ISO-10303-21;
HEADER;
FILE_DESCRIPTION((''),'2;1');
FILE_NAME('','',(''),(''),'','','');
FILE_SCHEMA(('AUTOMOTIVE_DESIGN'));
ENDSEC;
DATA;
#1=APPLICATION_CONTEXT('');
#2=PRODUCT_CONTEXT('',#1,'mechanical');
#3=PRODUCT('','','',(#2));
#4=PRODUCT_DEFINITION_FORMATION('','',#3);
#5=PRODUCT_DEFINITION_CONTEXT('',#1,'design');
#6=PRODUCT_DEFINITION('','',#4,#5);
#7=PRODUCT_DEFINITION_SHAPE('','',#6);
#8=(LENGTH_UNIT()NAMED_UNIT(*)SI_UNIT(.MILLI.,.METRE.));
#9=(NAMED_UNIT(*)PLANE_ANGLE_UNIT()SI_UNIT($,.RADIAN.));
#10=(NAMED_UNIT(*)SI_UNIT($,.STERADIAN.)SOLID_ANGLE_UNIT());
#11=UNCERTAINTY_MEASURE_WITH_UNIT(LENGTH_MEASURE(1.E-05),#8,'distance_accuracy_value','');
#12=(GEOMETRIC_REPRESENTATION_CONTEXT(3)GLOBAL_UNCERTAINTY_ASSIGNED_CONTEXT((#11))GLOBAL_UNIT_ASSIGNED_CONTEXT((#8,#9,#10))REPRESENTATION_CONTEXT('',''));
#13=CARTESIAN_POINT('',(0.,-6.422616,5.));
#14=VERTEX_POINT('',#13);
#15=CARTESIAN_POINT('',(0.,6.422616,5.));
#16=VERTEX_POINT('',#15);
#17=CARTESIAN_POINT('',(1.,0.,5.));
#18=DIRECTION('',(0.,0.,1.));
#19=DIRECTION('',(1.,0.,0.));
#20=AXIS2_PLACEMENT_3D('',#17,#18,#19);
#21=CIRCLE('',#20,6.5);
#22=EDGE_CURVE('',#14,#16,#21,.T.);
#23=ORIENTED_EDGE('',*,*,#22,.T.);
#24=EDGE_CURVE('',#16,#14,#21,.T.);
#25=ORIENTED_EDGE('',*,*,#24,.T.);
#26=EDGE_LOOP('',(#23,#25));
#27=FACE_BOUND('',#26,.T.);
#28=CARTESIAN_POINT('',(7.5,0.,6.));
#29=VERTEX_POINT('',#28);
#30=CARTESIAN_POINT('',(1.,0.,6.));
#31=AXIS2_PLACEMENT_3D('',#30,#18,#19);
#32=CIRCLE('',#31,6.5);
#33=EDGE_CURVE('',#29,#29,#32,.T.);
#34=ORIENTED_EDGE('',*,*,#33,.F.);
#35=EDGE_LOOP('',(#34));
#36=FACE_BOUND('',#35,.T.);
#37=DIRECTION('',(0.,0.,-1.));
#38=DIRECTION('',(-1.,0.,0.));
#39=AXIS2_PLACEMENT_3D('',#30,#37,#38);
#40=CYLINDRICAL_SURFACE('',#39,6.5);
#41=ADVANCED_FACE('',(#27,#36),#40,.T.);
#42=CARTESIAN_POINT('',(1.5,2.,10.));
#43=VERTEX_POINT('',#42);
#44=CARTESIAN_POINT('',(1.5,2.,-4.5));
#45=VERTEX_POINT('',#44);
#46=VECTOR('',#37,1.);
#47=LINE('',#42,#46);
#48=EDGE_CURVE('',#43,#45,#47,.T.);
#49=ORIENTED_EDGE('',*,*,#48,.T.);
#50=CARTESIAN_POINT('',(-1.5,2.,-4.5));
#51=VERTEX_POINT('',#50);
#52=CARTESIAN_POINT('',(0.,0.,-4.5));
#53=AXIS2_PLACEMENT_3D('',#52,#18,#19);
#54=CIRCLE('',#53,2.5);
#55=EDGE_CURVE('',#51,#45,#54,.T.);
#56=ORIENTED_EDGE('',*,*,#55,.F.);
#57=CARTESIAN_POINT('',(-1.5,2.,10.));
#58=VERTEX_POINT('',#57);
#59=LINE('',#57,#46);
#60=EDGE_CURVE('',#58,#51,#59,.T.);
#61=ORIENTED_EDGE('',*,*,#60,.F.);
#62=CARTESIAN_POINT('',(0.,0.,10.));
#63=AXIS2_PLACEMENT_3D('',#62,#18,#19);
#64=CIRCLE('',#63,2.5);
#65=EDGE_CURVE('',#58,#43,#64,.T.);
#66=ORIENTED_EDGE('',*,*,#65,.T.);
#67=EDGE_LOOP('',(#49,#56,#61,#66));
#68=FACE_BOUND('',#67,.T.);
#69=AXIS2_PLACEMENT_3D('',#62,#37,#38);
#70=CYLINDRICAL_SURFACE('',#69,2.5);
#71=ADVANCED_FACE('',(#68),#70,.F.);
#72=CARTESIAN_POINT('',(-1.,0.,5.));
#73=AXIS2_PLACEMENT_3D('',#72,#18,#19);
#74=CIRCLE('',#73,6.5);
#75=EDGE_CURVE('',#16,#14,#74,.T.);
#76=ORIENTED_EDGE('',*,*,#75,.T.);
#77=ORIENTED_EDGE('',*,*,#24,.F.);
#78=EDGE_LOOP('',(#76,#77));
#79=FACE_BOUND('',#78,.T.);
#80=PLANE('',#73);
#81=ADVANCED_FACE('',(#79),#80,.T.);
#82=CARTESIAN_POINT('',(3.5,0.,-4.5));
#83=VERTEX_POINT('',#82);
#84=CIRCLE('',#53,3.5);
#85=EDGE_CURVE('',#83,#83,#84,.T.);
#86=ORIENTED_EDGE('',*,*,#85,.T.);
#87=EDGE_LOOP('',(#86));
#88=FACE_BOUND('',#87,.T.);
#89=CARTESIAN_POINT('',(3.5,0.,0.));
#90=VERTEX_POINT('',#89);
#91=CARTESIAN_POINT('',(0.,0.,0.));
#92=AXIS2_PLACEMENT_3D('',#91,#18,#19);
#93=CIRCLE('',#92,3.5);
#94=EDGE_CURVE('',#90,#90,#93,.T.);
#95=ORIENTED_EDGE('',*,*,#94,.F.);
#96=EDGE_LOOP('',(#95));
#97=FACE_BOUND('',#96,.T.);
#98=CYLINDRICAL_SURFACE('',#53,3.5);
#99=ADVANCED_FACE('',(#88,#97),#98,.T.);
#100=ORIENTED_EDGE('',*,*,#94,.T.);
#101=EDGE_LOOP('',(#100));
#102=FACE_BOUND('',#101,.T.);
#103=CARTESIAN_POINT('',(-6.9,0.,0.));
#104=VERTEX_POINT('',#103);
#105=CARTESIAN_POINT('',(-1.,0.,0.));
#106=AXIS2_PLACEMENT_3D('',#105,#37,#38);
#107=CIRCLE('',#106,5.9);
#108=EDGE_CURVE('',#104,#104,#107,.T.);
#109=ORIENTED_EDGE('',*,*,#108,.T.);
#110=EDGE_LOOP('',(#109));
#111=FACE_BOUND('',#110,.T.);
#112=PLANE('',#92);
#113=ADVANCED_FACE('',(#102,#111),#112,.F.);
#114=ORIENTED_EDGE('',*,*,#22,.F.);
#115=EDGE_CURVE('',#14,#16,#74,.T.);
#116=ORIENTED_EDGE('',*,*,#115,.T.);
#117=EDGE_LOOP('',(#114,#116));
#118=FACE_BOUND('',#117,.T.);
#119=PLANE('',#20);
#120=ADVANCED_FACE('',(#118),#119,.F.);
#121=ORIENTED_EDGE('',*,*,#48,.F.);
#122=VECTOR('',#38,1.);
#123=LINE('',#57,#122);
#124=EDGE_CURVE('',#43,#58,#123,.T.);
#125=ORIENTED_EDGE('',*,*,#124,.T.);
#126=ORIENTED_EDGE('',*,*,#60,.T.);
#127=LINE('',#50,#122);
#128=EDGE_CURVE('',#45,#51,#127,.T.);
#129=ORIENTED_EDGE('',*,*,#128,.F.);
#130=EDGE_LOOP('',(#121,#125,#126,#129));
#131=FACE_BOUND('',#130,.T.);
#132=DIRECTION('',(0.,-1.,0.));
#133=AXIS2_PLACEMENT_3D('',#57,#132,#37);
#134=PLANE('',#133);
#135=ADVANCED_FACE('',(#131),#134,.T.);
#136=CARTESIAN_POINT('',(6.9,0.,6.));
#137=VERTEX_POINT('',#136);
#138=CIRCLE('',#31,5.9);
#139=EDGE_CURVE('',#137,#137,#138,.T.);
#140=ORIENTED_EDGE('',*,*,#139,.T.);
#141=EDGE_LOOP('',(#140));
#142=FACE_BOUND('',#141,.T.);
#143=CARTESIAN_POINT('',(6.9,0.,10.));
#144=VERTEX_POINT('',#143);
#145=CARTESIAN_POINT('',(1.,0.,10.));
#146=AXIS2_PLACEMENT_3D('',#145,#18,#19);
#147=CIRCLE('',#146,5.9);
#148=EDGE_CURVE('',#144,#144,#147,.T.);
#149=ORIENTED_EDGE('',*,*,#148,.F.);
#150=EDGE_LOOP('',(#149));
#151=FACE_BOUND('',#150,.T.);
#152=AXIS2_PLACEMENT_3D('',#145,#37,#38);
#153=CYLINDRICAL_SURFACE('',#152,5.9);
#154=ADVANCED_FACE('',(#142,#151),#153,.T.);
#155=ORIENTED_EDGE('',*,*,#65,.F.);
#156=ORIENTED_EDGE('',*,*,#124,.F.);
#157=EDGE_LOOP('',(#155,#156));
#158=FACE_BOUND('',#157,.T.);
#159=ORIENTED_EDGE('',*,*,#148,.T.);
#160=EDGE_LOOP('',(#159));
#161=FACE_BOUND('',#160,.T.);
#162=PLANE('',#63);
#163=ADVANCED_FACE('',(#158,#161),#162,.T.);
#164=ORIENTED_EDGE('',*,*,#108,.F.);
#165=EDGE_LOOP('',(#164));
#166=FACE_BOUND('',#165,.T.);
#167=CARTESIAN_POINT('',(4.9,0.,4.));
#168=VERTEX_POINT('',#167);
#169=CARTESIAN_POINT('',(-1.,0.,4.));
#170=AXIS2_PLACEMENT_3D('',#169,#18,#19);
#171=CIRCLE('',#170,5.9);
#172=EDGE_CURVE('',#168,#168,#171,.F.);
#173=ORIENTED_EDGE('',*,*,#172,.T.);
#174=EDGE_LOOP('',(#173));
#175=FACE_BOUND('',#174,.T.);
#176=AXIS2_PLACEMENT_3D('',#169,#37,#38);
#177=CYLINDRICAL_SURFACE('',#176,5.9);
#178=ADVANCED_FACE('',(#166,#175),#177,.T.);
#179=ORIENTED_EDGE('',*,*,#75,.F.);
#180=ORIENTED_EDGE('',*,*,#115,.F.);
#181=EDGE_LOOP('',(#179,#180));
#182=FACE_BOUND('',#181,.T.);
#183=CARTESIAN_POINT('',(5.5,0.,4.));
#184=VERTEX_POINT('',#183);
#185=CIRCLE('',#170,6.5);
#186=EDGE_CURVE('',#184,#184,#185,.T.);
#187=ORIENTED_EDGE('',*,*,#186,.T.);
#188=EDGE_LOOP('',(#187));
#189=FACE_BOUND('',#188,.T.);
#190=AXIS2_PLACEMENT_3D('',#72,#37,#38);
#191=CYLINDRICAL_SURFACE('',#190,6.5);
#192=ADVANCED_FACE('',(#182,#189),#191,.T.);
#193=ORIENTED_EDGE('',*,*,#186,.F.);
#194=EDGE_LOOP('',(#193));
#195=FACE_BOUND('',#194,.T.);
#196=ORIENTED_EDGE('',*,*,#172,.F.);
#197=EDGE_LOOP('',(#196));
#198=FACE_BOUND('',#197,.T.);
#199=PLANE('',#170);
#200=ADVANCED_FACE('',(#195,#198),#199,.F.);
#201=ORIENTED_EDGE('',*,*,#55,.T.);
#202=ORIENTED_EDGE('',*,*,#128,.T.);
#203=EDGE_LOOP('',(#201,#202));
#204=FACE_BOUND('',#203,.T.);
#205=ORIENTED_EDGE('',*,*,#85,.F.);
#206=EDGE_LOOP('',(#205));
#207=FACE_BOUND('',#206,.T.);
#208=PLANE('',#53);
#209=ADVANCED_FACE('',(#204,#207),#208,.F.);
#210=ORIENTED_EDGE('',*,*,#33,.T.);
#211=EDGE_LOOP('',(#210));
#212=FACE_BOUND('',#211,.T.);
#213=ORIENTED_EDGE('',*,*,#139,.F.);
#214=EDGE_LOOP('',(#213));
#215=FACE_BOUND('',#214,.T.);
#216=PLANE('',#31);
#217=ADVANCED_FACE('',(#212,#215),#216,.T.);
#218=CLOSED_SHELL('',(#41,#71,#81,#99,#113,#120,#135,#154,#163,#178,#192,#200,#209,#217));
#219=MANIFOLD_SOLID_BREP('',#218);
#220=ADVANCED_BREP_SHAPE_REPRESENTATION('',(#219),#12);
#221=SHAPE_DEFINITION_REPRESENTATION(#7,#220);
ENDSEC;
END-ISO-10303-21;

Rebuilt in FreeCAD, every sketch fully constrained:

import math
import FreeCAD as App
import Part
import Sketcher

doc = App.newDocument("Part")
body = doc.addObject("PartDesign::Body", "Body")

# Sketch on XY plane
sketch1 = body.newObject("Sketcher::SketchObject", "Sketch")
sketch1.AttachmentSupport = (doc.getObject("XY_Plane"), [""])
sketch1.MapMode = "FlatFace"
sketch1.addGeometry(Part.Circle(App.Vector(0, 0, 0), App.Vector(0, 0, 1), 3.5), False)
sketch1.addGeometry(Part.ArcOfCircle(Part.Circle(App.Vector(0, 0, 0), App.Vector(0, 0, 1), 2.5), math.radians(127), math.radians(413)), False)
sketch1.addGeometry(Part.LineSegment(App.Vector(-1.5, 2, 0), App.Vector(1.5, 2, 0)), False)
sketch1.addConstraint(Sketcher.Constraint("Coincident", 1, 1, 2, 1))
sketch1.addConstraint(Sketcher.Constraint("Coincident", 2, 2, 1, 2))
sketch1.addConstraint(Sketcher.Constraint("Horizontal", 2))
sketch1.addConstraint(Sketcher.Constraint("Coincident", 0, 3, -1, 1))
sketch1.addConstraint(Sketcher.Constraint("Coincident", 1, 3, -1, 1))
sketch1.addConstraint(Sketcher.Constraint("Diameter", 0, 7.0))
sketch1.addConstraint(Sketcher.Constraint("Radius", 1, 2.5))
sketch1.addConstraint(Sketcher.Constraint("DistanceX", 2, 1, 2, 2, 3.0))
pad1 = body.newObject("PartDesign::Pad", "Pad")
pad1.Profile = sketch1
pad1.Length = 10

# Sketch on XY plane
sketch2 = body.newObject("Sketcher::SketchObject", "Sketch001")
sketch2.AttachmentSupport = (doc.getObject("XY_Plane"), [""])
sketch2.MapMode = "FlatFace"
sketch2.addGeometry(Part.Circle(App.Vector(-1, 0, 0), App.Vector(0, 0, 1), 5.9), False)
sketch2.addGeometry(Part.Circle(App.Vector(0, 0, 0), App.Vector(0, 0, 1), 3.5), False)
sketch2.addConstraint(Sketcher.Constraint("Coincident", 1, 3, -1, 1))
sketch2.addConstraint(Sketcher.Constraint("PointOnObject", 0, 3, -1))
sketch2.addConstraint(Sketcher.Constraint("Diameter", 1, 7.0))
sketch2.addConstraint(Sketcher.Constraint("Diameter", 0, 11.8))
sketch2.addConstraint(Sketcher.Constraint("DistanceX", 0, 3, -1, 1, 1.0))
pad2 = body.newObject("PartDesign::Pad", "Pad001")
pad2.Profile = sketch2
pad2.Length = 4

# Sketch on XY plane
sketch3 = body.newObject("Sketcher::SketchObject", "Sketch002")
sketch3.AttachmentSupport = (doc.getObject("XY_Plane"), [""])
sketch3.MapMode = "FlatFace"
sketch3.AttachmentOffset = App.Placement(App.Vector(0, 0, 4), App.Rotation())
sketch3.addGeometry(Part.Circle(App.Vector(-1, 0, 0), App.Vector(0, 0, 1), 6.5), False)
sketch3.addGeometry(Part.LineSegment(App.Vector(-1.5, 2, 0), App.Vector(1.5, 2, 0)), False)
sketch3.addGeometry(Part.ArcOfCircle(Part.Circle(App.Vector(0, 0, 0), App.Vector(0, 0, 1), 2.5), math.radians(127), math.radians(413)), False)
sketch3.addConstraint(Sketcher.Constraint("Coincident", 1, 1, 2, 1))
sketch3.addConstraint(Sketcher.Constraint("Coincident", 2, 2, 1, 2))
sketch3.addConstraint(Sketcher.Constraint("Horizontal", 1))
sketch3.addConstraint(Sketcher.Constraint("Coincident", 2, 3, -1, 1))
sketch3.addConstraint(Sketcher.Constraint("PointOnObject", 0, 3, -1))
sketch3.addConstraint(Sketcher.Constraint("Diameter", 0, 13.0))
sketch3.addConstraint(Sketcher.Constraint("Radius", 2, 2.5))
sketch3.addConstraint(Sketcher.Constraint("DistanceX", 1, 1, 1, 2, 3.0))
sketch3.addConstraint(Sketcher.Constraint("DistanceX", 0, 3, -1, 1, 1.0))
pad3 = body.newObject("PartDesign::Pad", "Pad002")
pad3.Profile = sketch3
pad3.Length = 1

# Sketch on XY plane
sketch4 = body.newObject("Sketcher::SketchObject", "Sketch003")
sketch4.AttachmentSupport = (doc.getObject("XY_Plane"), [""])
sketch4.MapMode = "FlatFace"
sketch4.AttachmentOffset = App.Placement(App.Vector(0, 0, 5), App.Rotation())
sketch4.addGeometry(Part.Circle(App.Vector(1, 0, 0), App.Vector(0, 0, 1), 6.5), False)
sketch4.addGeometry(Part.LineSegment(App.Vector(-1.5, 2, 0), App.Vector(1.5, 2, 0)), False)
sketch4.addGeometry(Part.ArcOfCircle(Part.Circle(App.Vector(0, 0, 0), App.Vector(0, 0, 1), 2.5), math.radians(127), math.radians(413)), False)
sketch4.addConstraint(Sketcher.Constraint("Coincident", 1, 1, 2, 1))
sketch4.addConstraint(Sketcher.Constraint("Coincident", 2, 2, 1, 2))
sketch4.addConstraint(Sketcher.Constraint("Horizontal", 1))
sketch4.addConstraint(Sketcher.Constraint("Coincident", 2, 3, -1, 1))
sketch4.addConstraint(Sketcher.Constraint("PointOnObject", 0, 3, -1))
sketch4.addConstraint(Sketcher.Constraint("Diameter", 0, 13.0))
sketch4.addConstraint(Sketcher.Constraint("Radius", 2, 2.5))
sketch4.addConstraint(Sketcher.Constraint("DistanceX", 1, 1, 1, 2, 3.0))
sketch4.addConstraint(Sketcher.Constraint("DistanceX", -1, 1, 0, 3, 1.0))
pad4 = body.newObject("PartDesign::Pad", "Pad003")
pad4.Profile = sketch4
pad4.Length = 1

# Sketch on XY plane
sketch5 = body.newObject("Sketcher::SketchObject", "Sketch004")
sketch5.AttachmentSupport = (doc.getObject("XY_Plane"), [""])
sketch5.MapMode = "FlatFace"
sketch5.AttachmentOffset = App.Placement(App.Vector(0, 0, 6), App.Rotation())
sketch5.addGeometry(Part.Circle(App.Vector(1, 0, 0), App.Vector(0, 0, 1), 5.9), False)
sketch5.addGeometry(Part.LineSegment(App.Vector(-1.5, 2, 0), App.Vector(1.5, 2, 0)), False)
sketch5.addGeometry(Part.ArcOfCircle(Part.Circle(App.Vector(0, 0, 0), App.Vector(0, 0, 1), 2.5), math.radians(127), math.radians(413)), False)
sketch5.addConstraint(Sketcher.Constraint("Coincident", 1, 1, 2, 1))
sketch5.addConstraint(Sketcher.Constraint("Coincident", 2, 2, 1, 2))
sketch5.addConstraint(Sketcher.Constraint("Horizontal", 1))
sketch5.addConstraint(Sketcher.Constraint("Coincident", 2, 3, -1, 1))
sketch5.addConstraint(Sketcher.Constraint("PointOnObject", 0, 3, -1))
sketch5.addConstraint(Sketcher.Constraint("Diameter", 0, 11.8))
sketch5.addConstraint(Sketcher.Constraint("Radius", 2, 2.5))
sketch5.addConstraint(Sketcher.Constraint("DistanceX", 1, 1, 1, 2, 3.0))
sketch5.addConstraint(Sketcher.Constraint("DistanceX", -1, 1, 0, 3, 1.0))
pad5 = body.newObject("PartDesign::Pad", "Pad004")
pad5.Profile = sketch5
pad5.Length = 4

# Sketch on XY plane
sketch6 = body.newObject("Sketcher::SketchObject", "Sketch005")
sketch6.AttachmentSupport = (doc.getObject("XY_Plane"), [""])
sketch6.MapMode = "FlatFace"
sketch6.AttachmentOffset = App.Placement(App.Vector(0, 0, -4.5), App.Rotation())
sketch6.addGeometry(Part.Circle(App.Vector(0, 0, 0), App.Vector(0, 0, 1), 3.5), False)
sketch6.addGeometry(Part.ArcOfCircle(Part.Circle(App.Vector(0, 0, 0), App.Vector(0, 0, 1), 2.5), math.radians(127), math.radians(413)), False)
sketch6.addGeometry(Part.LineSegment(App.Vector(-1.5, 2, 0), App.Vector(1.5, 2, 0)), False)
sketch6.addConstraint(Sketcher.Constraint("Coincident", 1, 1, 2, 1))
sketch6.addConstraint(Sketcher.Constraint("Coincident", 2, 2, 1, 2))
sketch6.addConstraint(Sketcher.Constraint("Horizontal", 2))
sketch6.addConstraint(Sketcher.Constraint("Coincident", 0, 3, -1, 1))
sketch6.addConstraint(Sketcher.Constraint("Coincident", 1, 3, -1, 1))
sketch6.addConstraint(Sketcher.Constraint("Diameter", 0, 7.0))
sketch6.addConstraint(Sketcher.Constraint("Radius", 1, 2.5))
sketch6.addConstraint(Sketcher.Constraint("DistanceX", 2, 1, 2, 2, 3.0))
pad6 = body.newObject("PartDesign::Pad", "Pad005")
pad6.Profile = sketch6
pad6.Length = 4.5

doc.recompute()
